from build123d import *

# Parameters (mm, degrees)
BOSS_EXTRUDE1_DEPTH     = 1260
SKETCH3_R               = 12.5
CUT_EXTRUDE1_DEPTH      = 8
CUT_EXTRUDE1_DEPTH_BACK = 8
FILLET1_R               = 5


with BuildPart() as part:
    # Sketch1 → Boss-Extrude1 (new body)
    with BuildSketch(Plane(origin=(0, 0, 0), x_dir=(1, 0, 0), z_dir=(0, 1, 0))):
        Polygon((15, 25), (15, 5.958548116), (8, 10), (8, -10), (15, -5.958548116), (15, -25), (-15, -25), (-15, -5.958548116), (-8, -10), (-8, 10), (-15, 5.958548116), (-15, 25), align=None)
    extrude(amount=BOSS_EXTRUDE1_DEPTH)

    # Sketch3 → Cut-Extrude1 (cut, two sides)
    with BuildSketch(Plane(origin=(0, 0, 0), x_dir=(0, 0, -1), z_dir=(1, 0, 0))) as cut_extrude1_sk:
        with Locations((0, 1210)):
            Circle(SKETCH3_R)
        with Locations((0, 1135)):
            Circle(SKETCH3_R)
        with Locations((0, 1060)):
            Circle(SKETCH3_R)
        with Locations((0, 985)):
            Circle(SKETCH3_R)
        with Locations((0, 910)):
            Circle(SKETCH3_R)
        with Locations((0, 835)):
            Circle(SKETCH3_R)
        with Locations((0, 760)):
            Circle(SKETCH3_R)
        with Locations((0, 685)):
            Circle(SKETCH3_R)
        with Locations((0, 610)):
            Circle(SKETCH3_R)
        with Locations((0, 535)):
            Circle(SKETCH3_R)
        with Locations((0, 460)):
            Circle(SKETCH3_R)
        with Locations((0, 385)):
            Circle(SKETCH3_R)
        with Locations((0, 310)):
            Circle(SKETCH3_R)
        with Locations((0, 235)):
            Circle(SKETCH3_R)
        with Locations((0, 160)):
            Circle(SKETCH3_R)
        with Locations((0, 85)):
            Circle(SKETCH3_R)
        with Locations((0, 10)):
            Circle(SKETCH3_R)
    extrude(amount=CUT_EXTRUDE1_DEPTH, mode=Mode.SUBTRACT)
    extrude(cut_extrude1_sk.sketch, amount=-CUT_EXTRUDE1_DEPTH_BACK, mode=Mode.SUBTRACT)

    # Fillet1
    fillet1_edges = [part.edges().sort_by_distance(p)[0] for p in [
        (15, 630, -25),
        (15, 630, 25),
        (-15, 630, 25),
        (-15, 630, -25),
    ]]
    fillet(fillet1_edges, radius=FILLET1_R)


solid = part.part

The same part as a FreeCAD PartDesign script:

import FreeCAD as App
import Part
import Sketcher
Q = App.Units.Quantity


def edges_at(feature, points):
    """Names of the edges that pass closest to the given points."""
    edges = feature.Shape.Edges
    near = lambda p: min(range(len(edges)), key=lambda i: edges[i].distToShape(Part.Vertex(*p))[0])
    return sorted({f"Edge{near(p) + 1}" for p in points})


def add_polygon(sketch, points):
    """Adds a closed chain of lines whose ends are joined by coincident constraints."""
    first, n = sketch.GeometryCount, len(points)
    for a, b in zip(points, points[1:] + points[:1]):
        sketch.addGeometry(Part.LineSegment(App.Vector(*a, 0), App.Vector(*b, 0)), False)
    for i in range(n):
        sketch.addConstraint(Sketcher.Constraint("Coincident", first + i, 2, first + (i + 1) % n, 1))

doc = App.newDocument("Part")
params = doc.addObject("Spreadsheet::Sheet", "Params")
for row, (alias, value) in enumerate([
    ("sketch1_width", "30 mm"),
    ("sketch1_height", "20 mm"),
    ("pad1_length", "1260 mm"),
    ("sketch2_diameter", "25 mm"),
    ("pocket1_length", "8 mm"),
    ("pocket1_length2", "8 mm"),
    ("fillet_radius", "5 mm"),
], start=1):
    params.set(f"A{row}", alias)
    params.set(f"B{row}", "=" + value)
    params.setAlias(f"B{row}", alias)

body = doc.addObject("PartDesign::Body", "Body")

# Sketch on XZ plane
sketch1 = doc.addObject("Sketcher::SketchObject", "Sketch")
body.addObject(sketch1)
sketch1.AttachmentSupport = (doc.XZ_Plane, [""])
sketch1.MapMode = "FlatFace"
add_polygon(sketch1, [(15, -6), (15, -25), (-15, -25), (-15, -6), (-8, -10), (-8, 10), (-15, 6), (-15, 25), (15, 25), (15, 6), (8, 10), (8, -10)])  # lines 0-11
sketch1.addConstraint(Sketcher.Constraint("Vertical", 0))
sketch1.addConstraint(Sketcher.Constraint("Horizontal", 1))
sketch1.addConstraint(Sketcher.Constraint("Vertical", 2))
sketch1.addConstraint(Sketcher.Constraint("Vertical", 4))
sketch1.addConstraint(Sketcher.Constraint("Vertical", 6))
sketch1.addConstraint(Sketcher.Constraint("Horizontal", 7))
sketch1.addConstraint(Sketcher.Constraint("Vertical", 8))
sketch1.addConstraint(Sketcher.Constraint("Vertical", 10))
sketch1.addConstraint(Sketcher.Constraint("Symmetric", 0, 2, 6, 2, -1, 1))
sketch1.addConstraint(Sketcher.Constraint("Symmetric", 2, 2, 8, 2, -1, 1))
sketch1.addConstraint(Sketcher.Constraint("Symmetric", 3, 2, 9, 2, -1, 1))
sketch1.addConstraint(Sketcher.Constraint("Symmetric", 5, 2, 8, 2, -2))
sketch1.addConstraint(Sketcher.Constraint("Parallel", 5, 11))
sketch1.addConstraint(Sketcher.Constraint("Horizontal", 4, 2, 9, 2))
sketch1.addConstraint(Sketcher.Constraint("Horizontal", 3, 2, 10, 2))
sketch1.addConstraint(Sketcher.Constraint("DistanceX", 1, 2, 1, 1, Q("30 mm")))
sketch1.addConstraint(Sketcher.Constraint("DistanceY", 4, 1, 4, 2, Q("20 mm")))
sketch1.addConstraint(Sketcher.Constraint("Angle", 3, Q("-30 deg")))
sketch1.addConstraint(Sketcher.Constraint("DistanceY", 0, 2, -1, 1, Q("25 mm")))
sketch1.addConstraint(Sketcher.Constraint("DistanceX", 3, 2, -1, 1, Q("8 mm")))
sketch1.setExpression("Constraints[27]", "Params.sketch1_width")
sketch1.setExpression("Constraints[28]", "Params.sketch1_height")
pad1 = doc.addObject("PartDesign::Pad", "Pad")
body.addObject(pad1)
pad1.Profile = sketch1
pad1.setExpression("Length", "Params.pad1_length")
pad1.Reversed = True

# Sketch on YZ plane
sketch2 = doc.addObject("Sketcher::SketchObject", "Sketch001")
body.addObject(sketch2)
sketch2.AttachmentSupport = (doc.YZ_Plane, [""])
sketch2.MapMode = "FlatFace"
sketch2.addGeometry(Part.Circle(App.Vector(1210, 0, 0), App.Vector(0, 0, 1), 12), False)
sketch2.addGeometry(Part.Circle(App.Vector(1135, 0, 0), App.Vector(0, 0, 1), 12), False)
sketch2.addGeometry(Part.Circle(App.Vector(1060, 0, 0), App.Vector(0, 0, 1), 12), False)
sketch2.addGeometry(Part.Circle(App.Vector(985, 0, 0), App.Vector(0, 0, 1), 12), False)
sketch2.addGeometry(Part.Circle(App.Vector(910, 0, 0), App.Vector(0, 0, 1), 12), False)
sketch2.addGeometry(Part.Circle(App.Vector(835, 0, 0), App.Vector(0, 0, 1), 12), False)
sketch2.addGeometry(Part.Circle(App.Vector(760, 0, 0), App.Vector(0, 0, 1), 12), False)
sketch2.addGeometry(Part.Circle(App.Vector(685, 0, 0), App.Vector(0, 0, 1), 12), False)
sketch2.addGeometry(Part.Circle(App.Vector(610, 0, 0), App.Vector(0, 0, 1), 12), False)
sketch2.addGeometry(Part.Circle(App.Vector(535, 0, 0), App.Vector(0, 0, 1), 12), False)
sketch2.addGeometry(Part.Circle(App.Vector(460, 0, 0), App.Vector(0, 0, 1), 12), False)
sketch2.addGeometry(Part.Circle(App.Vector(385, 0, 0), App.Vector(0, 0, 1), 12), False)
sketch2.addGeometry(Part.Circle(App.Vector(310, 0, 0), App.Vector(0, 0, 1), 12), False)
sketch2.addGeometry(Part.Circle(App.Vector(235, 0, 0), App.Vector(0, 0, 1), 12), False)
sketch2.addGeometry(Part.Circle(App.Vector(160, 0, 0), App.Vector(0, 0, 1), 12), False)
sketch2.addGeometry(Part.Circle(App.Vector(85, 0, 0), App.Vector(0, 0, 1), 12), False)
sketch2.addGeometry(Part.Circle(App.Vector(10, 0, 0), App.Vector(0, 0, 1), 12), False)
sketch2.addConstraint(Sketcher.Constraint("Equal", 0, 1))
sketch2.addConstraint(Sketcher.Constraint("Equal", 1, 2))
sketch2.addConstraint(Sketcher.Constraint("Equal", 2, 3))
sketch2.addConstraint(Sketcher.Constraint("Equal", 3, 4))
sketch2.addConstraint(Sketcher.Constraint("Equal", 4, 5))
sketch2.addConstraint(Sketcher.Constraint("Equal", 5, 6))
sketch2.addConstraint(Sketcher.Constraint("Equal", 6, 7))
sketch2.addConstraint(Sketcher.Constraint("Equal", 7, 8))
sketch2.addConstraint(Sketcher.Constraint("Equal", 8, 9))
sketch2.addConstraint(Sketcher.Constraint("Equal", 9, 10))
sketch2.addConstraint(Sketcher.Constraint("Equal", 10, 11))
sketch2.addConstraint(Sketcher.Constraint("Equal", 11, 12))
sketch2.addConstraint(Sketcher.Constraint("Equal", 12, 13))
sketch2.addConstraint(Sketcher.Constraint("Equal", 13, 14))
sketch2.addConstraint(Sketcher.Constraint("Equal", 14, 15))
sketch2.addConstraint(Sketcher.Constraint("Equal", 15, 16))
sketch2.addConstraint(Sketcher.Constraint("PointOnObject", 0, 3, -1))
sketch2.addConstraint(Sketcher.Constraint("PointOnObject", 1, 3, -1))
sketch2.addConstraint(Sketcher.Constraint("PointOnObject", 2, 3, -1))
sketch2.addConstraint(Sketcher.Constraint("PointOnObject", 3, 3, -1))
sketch2.addConstraint(Sketcher.Constraint("PointOnObject", 4, 3, -1))
sketch2.addConstraint(Sketcher.Constraint("PointOnObject", 5, 3, -1))
sketch2.addConstraint(Sketcher.Constraint("PointOnObject", 6, 3, -1))
sketch2.addConstraint(Sketcher.Constraint("PointOnObject", 7, 3, -1))
sketch2.addConstraint(Sketcher.Constraint("PointOnObject", 8, 3, -1))
sketch2.addConstraint(Sketcher.Constraint("PointOnObject", 9, 3, -1))
sketch2.addConstraint(Sketcher.Constraint("PointOnObject", 10, 3, -1))
sketch2.addConstraint(Sketcher.Constraint("PointOnObject", 11, 3, -1))
sketch2.addConstraint(Sketcher.Constraint("PointOnObject", 12, 3, -1))
sketch2.addConstraint(Sketcher.Constraint("PointOnObject", 13, 3, -1))
sketch2.addConstraint(Sketcher.Constraint("PointOnObject", 14, 3, -1))
sketch2.addConstraint(Sketcher.Constraint("PointOnObject", 15, 3, -1))
sketch2.addConstraint(Sketcher.Constraint("PointOnObject", 16, 3, -1))
sketch2.addConstraint(Sketcher.Constraint("Diameter", 0, Q("25 mm")))
sketch2.addConstraint(Sketcher.Constraint("DistanceX", -1, 1, 0, 3, Q("1210 mm")))
sketch2.addConstraint(Sketcher.Constraint("DistanceX", -1, 1, 1, 3, Q("1135 mm")))
sketch2.addConstraint(Sketcher.Constraint("DistanceX", -1, 1, 2, 3, Q("1060 mm")))
sketch2.addConstraint(Sketcher.Constraint("DistanceX", -1, 1, 3, 3, Q("985 mm")))
sketch2.addConstraint(Sketcher.Constraint("DistanceX", -1, 1, 4, 3, Q("910 mm")))
sketch2.addConstraint(Sketcher.Constraint("DistanceX", -1, 1, 5, 3, Q("835 mm")))
sketch2.addConstraint(Sketcher.Constraint("DistanceX", -1, 1, 6, 3, Q("760 mm")))
sketch2.addConstraint(Sketcher.Constraint("DistanceX", -1, 1, 7, 3, Q("685 mm")))
sketch2.addConstraint(Sketcher.Constraint("DistanceX", -1, 1, 8, 3, Q("610 mm")))
sketch2.addConstraint(Sketcher.Constraint("DistanceX", -1, 1, 9, 3, Q("535 mm")))
sketch2.addConstraint(Sketcher.Constraint("DistanceX", -1, 1, 10, 3, Q("460 mm")))
sketch2.addConstraint(Sketcher.Constraint("DistanceX", -1, 1, 11, 3, Q("385 mm")))
sketch2.addConstraint(Sketcher.Constraint("DistanceX", -1, 1, 12, 3, Q("310 mm")))
sketch2.addConstraint(Sketcher.Constraint("DistanceX", -1, 1, 13, 3, Q("235 mm")))
sketch2.addConstraint(Sketcher.Constraint("DistanceX", -1, 1, 14, 3, Q("160 mm")))
sketch2.addConstraint(Sketcher.Constraint("DistanceX", -1, 1, 15, 3, Q("85 mm")))
sketch2.addConstraint(Sketcher.Constraint("DistanceX", -1, 1, 16, 3, Q("10 mm")))
sketch2.setExpression("Constraints[33]", "Params.sketch2_diameter")
pocket1 = doc.addObject("PartDesign::Pocket", "Pocket")
body.addObject(pocket1)
pocket1.Profile = sketch2
pocket1.Type = "TwoLengths"
pocket1.setExpression("Length", "Params.pocket1_length")
pocket1.setExpression("Length2", "Params.pocket1_length2")
pocket1.Reversed = True
doc.recompute()

fillet = doc.addObject("PartDesign::Fillet", "Fillet")
body.addObject(fillet)
fillet.Base = (pocket1, edges_at(pocket1, [
    (15, 630, -25),
    (15, 630, 25),
    (-15, 630, 25),
    (-15, 630, -25),
]))
fillet.setExpression("Radius", "Params.fillet_radius")

doc.recompute()
